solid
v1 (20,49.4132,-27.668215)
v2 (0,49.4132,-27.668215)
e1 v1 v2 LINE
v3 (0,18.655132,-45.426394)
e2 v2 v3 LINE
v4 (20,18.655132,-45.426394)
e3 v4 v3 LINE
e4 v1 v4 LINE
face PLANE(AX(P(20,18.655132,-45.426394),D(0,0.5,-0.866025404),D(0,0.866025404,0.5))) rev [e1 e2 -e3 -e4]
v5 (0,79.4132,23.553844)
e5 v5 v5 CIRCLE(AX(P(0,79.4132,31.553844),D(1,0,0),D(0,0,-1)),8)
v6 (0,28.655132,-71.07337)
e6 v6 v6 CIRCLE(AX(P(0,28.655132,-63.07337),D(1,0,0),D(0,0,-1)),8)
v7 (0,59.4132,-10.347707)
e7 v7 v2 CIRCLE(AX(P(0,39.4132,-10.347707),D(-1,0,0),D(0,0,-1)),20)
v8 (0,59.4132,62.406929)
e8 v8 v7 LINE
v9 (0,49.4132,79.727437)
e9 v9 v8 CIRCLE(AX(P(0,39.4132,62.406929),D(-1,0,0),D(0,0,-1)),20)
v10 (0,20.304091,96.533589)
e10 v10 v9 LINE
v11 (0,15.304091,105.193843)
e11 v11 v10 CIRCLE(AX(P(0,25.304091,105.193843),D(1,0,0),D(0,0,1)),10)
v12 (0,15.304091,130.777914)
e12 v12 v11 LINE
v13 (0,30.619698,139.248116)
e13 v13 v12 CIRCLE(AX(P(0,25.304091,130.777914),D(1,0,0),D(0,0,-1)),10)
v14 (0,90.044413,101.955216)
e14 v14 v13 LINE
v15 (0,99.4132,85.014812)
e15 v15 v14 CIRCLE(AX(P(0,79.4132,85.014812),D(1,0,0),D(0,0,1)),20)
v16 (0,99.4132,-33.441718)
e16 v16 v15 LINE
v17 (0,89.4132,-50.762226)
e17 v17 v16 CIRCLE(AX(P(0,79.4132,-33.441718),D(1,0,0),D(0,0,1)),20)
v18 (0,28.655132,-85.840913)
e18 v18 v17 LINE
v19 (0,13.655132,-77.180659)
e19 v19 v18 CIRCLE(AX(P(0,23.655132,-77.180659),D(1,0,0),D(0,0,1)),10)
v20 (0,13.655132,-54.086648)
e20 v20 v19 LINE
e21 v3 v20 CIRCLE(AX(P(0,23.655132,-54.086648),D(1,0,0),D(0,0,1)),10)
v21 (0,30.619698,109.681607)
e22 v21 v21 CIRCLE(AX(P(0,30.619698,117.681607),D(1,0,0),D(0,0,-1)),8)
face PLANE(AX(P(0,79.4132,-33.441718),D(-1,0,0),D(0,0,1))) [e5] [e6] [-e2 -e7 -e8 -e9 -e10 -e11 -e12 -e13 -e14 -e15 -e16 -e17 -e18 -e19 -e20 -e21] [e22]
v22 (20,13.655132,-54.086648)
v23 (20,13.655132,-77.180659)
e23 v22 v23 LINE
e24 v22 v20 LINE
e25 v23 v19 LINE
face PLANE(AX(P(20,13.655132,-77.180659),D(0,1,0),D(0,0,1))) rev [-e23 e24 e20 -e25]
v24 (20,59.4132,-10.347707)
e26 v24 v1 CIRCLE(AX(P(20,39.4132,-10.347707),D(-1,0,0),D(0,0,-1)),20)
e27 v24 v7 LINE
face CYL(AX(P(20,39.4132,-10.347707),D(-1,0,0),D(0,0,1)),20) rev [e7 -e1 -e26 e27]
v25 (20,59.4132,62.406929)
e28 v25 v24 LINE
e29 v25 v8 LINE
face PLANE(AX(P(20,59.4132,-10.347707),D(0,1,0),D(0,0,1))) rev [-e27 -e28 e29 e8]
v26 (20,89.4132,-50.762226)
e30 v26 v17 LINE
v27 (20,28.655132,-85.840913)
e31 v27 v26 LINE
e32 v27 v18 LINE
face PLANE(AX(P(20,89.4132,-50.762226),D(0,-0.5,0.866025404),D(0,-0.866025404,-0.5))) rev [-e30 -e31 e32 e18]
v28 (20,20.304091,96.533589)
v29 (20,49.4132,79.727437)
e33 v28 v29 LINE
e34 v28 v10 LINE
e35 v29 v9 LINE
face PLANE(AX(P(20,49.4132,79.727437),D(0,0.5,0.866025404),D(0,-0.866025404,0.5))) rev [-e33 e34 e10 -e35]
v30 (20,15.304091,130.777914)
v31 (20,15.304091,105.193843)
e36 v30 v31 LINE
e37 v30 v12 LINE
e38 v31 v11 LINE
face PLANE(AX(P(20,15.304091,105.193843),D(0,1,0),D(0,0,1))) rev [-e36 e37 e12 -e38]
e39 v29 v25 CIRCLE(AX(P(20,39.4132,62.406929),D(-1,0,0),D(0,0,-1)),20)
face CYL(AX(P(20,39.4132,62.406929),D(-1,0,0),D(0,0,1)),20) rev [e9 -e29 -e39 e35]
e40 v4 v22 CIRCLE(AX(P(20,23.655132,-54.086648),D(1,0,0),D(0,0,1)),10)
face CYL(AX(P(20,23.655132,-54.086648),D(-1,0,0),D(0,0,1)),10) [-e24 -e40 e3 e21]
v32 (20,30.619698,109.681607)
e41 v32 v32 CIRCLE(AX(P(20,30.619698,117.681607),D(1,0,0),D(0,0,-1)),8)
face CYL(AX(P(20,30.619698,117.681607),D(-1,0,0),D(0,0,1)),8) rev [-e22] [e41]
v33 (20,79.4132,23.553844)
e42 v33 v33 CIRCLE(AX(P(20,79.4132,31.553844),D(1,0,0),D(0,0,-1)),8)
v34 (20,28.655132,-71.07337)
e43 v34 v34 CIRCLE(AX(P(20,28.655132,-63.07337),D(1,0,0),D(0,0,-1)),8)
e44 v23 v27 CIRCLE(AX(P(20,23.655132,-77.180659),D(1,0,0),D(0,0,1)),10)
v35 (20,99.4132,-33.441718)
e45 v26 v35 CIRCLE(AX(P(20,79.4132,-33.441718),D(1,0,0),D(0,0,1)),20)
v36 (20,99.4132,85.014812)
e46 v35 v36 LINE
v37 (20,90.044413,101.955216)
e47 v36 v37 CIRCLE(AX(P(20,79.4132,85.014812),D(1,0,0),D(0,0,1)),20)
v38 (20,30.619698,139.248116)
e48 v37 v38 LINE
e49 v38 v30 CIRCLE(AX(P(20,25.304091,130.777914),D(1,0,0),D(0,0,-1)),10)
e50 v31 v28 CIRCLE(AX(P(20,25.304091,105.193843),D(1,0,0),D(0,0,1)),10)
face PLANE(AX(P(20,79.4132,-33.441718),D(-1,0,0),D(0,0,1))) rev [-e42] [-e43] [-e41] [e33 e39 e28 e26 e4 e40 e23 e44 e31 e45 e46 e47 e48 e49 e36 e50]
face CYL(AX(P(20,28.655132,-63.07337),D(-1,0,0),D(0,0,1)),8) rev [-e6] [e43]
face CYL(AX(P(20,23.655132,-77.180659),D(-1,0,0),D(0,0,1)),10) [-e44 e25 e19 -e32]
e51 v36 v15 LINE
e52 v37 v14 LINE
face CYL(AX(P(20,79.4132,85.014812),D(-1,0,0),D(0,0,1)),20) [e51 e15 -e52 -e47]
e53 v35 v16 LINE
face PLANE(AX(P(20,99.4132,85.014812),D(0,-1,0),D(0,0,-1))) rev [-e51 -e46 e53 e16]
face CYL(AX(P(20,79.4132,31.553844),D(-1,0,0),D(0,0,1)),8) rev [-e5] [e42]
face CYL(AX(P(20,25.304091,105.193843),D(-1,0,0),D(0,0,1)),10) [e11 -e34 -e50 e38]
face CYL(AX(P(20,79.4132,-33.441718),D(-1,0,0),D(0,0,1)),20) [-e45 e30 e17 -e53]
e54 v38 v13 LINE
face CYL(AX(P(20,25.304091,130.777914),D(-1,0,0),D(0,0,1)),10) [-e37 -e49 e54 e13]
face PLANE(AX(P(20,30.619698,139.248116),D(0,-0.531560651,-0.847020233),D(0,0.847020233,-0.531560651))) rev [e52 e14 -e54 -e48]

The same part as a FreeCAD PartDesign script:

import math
import FreeCAD as App
import Part
import Sketcher
from FreeCAD import Vector
Q = App.Units.Quantity

doc = App.newDocument("Part")
body = doc.addObject("PartDesign::Body", "Body")

sketch1 = body.newObject("Sketcher::SketchObject", "Sketch")
sketch1.AttachmentSupport = (doc.getObject("YZ_Plane"), [""])
sketch1.MapMode = "FlatFace"
sketch1.addGeometry(Part.LineSegment(Vector(90, 102, 0), Vector(31, 139, 0)), False)
sketch1.addGeometry(Part.ArcOfCircle(Part.Circle(Vector(25, 131, 0), Vector(0, 0, 1), 10), math.radians(58), math.radians(180)), False)
sketch1.addGeometry(Part.LineSegment(Vector(15, 131, 0), Vector(15, 105, 0)), False)
sketch1.addGeometry(Part.ArcOfCircle(Part.Circle(Vector(25, 105, 0), Vector(0, 0, 1), 10), math.radians(180), math.radians(240)), False)
sketch1.addGeometry(Part.LineSegment(Vector(20, 97, 0), Vector(49, 80, 0)), False)
sketch1.addGeometry(Part.ArcOfCircle(Part.Circle(Vector(39, 62, 0), Vector(0, 0, 1), 20), math.radians(0), math.radians(60)), False)
sketch1.addGeometry(Part.LineSegment(Vector(59, 62, 0), Vector(59, -10, 0)), False)
sketch1.addGeometry(Part.ArcOfCircle(Part.Circle(Vector(39, -10, 0), Vector(0, 0, 1), 20), math.radians(-60), math.radians(0)), False)
sketch1.addGeometry(Part.LineSegment(Vector(49, -28, 0), Vector(19, -45, 0)), False)
sketch1.addGeometry(Part.ArcOfCircle(Part.Circle(Vector(24, -54, 0), Vector(0, 0, 1), 10), math.radians(120), math.radians(180)), False)
sketch1.addGeometry(Part.LineSegment(Vector(14, -54, 0), Vector(14, -77, 0)), False)
sketch1.addGeometry(Part.ArcOfCircle(Part.Circle(Vector(24, -77, 0), Vector(0, 0, 1), 10), math.radians(180), math.radians(300)), False)
sketch1.addGeometry(Part.LineSegment(Vector(29, -86, 0), Vector(89, -51, 0)), False)
sketch1.addGeometry(Part.ArcOfCircle(Part.Circle(Vector(79, -33, 0), Vector(0, 0, 1), 20), math.radians(-60), math.radians(0)), False)
sketch1.addGeometry(Part.LineSegment(Vector(99, -33, 0), Vector(99, 85, 0)), False)
sketch1.addGeometry(Part.ArcOfCircle(Part.Circle(Vector(79, 85, 0), Vector(0, 0, 1), 20), math.radians(0), math.radians(58)), False)
sketch1.addGeometry(Part.Circle(Vector(29, -63, 0), Vector(0, 0, 1), 8), False)
sketch1.addGeometry(Part.Circle(Vector(31, 118, 0), Vector(0, 0, 1), 8), False)
sketch1.addGeometry(Part.Circle(Vector(79, 32, 0), Vector(0, 0, 1), 8), False)
sketch1.addConstraint(Sketcher.Constraint("Tangent", 0, 2, 1, 1))
sketch1.addConstraint(Sketcher.Constraint("Tangent", 1, 2, 2, 1))
sketch1.addConstraint(Sketcher.Constraint("Tangent", 2, 2, 3, 1))
sketch1.addConstraint(Sketcher.Constraint("Tangent", 3, 2, 4, 1))
sketch1.addConstraint(Sketcher.Constraint("Tangent", 4, 2, 5, 2))
sketch1.addConstraint(Sketcher.Constraint("Tangent", 5, 1, 6, 1))
sketch1.addConstraint(Sketcher.Constraint("Tangent", 6, 2, 7, 2))
sketch1.addConstraint(Sketcher.Constraint("Tangent", 7, 1, 8, 1))
sketch1.addConstraint(Sketcher.Constraint("Tangent", 8, 2, 9, 1))
sketch1.addConstraint(Sketcher.Constraint("Tangent", 9, 2, 10, 1))
sketch1.addConstraint(Sketcher.Constraint("Tangent", 10, 2, 11, 1))
sketch1.addConstraint(Sketcher.Constraint("Tangent", 11, 2, 12, 1))
sketch1.addConstraint(Sketcher.Constraint("Tangent", 12, 2, 13, 1))
sketch1.addConstraint(Sketcher.Constraint("Tangent", 13, 2, 14, 1))
sketch1.addConstraint(Sketcher.Constraint("Tangent", 14, 2, 15, 1))
sketch1.addConstraint(Sketcher.Constraint("Tangent", 15, 2, 0, 1))
sketch1.addConstraint(Sketcher.Constraint("Vertical", 2))
sketch1.addConstraint(Sketcher.Constraint("Vertical", 6))
sketch1.addConstraint(Sketcher.Constraint("Vertical", 10))
sketch1.addConstraint(Sketcher.Constraint("Vertical", 14))
sketch1.addConstraint(Sketcher.Constraint("Equal", 1, 3))
sketch1.addConstraint(Sketcher.Constraint("Equal", 5, 7))
sketch1.addConstraint(Sketcher.Constraint("Equal", 3, 9))
sketch1.addConstraint(Sketcher.Constraint("Equal", 9, 11))
sketch1.addConstraint(Sketcher.Constraint("Equal", 7, 13))
sketch1.addConstraint(Sketcher.Constraint("Equal", 13, 15))
sketch1.addConstraint(Sketcher.Constraint("Equal", 16, 17))
sketch1.addConstraint(Sketcher.Constraint("Equal", 17, 18))
sketch1.addConstraint(Sketcher.Constraint("Parallel", 8, 12))
sketch1.addConstraint(Sketcher.Constraint("Vertical", 15, 3, 18, 3))
sketch1.addConstraint(Sketcher.Constraint("Vertical", 17, 3, 0, 2))
sketch1.addConstraint(Sketcher.Constraint("Vertical", 4, 2, 7, 1))
sketch1.addConstraint(Sketcher.Constraint("Vertical", 16, 3, 11, 2))
sketch1.addConstraint(Sketcher.Constraint("Equal", 0, 12))
sketch1.addConstraint(Sketcher.Constraint("Diameter", 16, 16.0))
sketch1.addConstraint(Sketcher.Constraint("Radius", 1, 10.0))
sketch1.addConstraint(Sketcher.Constraint("Radius", 5, 20.0))
sketch1.addConstraint(Sketcher.Constraint("Angle", 4, Q("-30 deg")))
sketch1.addConstraint(Sketcher.Constraint("DistanceX", 7, 3, 13, 3, 40.0))
sketch1.addConstraint(Sketcher.Constraint("DistanceY", 18, 3, 3, 3, 73.639999))
sketch1.addConstraint(Sketcher.Constraint("DistanceY", 2, 2, 2, 1, 25.584071))
sketch1.addConstraint(Sketcher.Constraint("DistanceY", 10, 2, 10, 1, 23.094011))
sketch1.addConstraint(Sketcher.Constraint("DistanceY", 14, 1, 14, 2, 118.45653))
sketch1.addConstraint(Sketcher.Constraint("DistanceX", -1, 1, 5, 3, 39.4132))
sketch1.addConstraint(Sketcher.Constraint("DistanceY", 15, 3, 1, 3, 45.763102))
sketch1.addConstraint(Sketcher.Constraint("DistanceY", 16, 3, 5, 3, 125.480299))
sketch1.addConstraint(Sketcher.Constraint("Distance", 8, 35.516358))
sketch1.addConstraint(Sketcher.Constraint("DistanceY", -1, 1, 5, 3, 62.406929))
sketch1.addConstraint(Sketcher.Constraint("DistanceY", 5, 3, 17, 3, 55.274678))
pad1 = body.newObject("PartDesign::Pad", "Pad")
pad1.Profile = sketch1
pad1.Length = 20

doc.recompute()
